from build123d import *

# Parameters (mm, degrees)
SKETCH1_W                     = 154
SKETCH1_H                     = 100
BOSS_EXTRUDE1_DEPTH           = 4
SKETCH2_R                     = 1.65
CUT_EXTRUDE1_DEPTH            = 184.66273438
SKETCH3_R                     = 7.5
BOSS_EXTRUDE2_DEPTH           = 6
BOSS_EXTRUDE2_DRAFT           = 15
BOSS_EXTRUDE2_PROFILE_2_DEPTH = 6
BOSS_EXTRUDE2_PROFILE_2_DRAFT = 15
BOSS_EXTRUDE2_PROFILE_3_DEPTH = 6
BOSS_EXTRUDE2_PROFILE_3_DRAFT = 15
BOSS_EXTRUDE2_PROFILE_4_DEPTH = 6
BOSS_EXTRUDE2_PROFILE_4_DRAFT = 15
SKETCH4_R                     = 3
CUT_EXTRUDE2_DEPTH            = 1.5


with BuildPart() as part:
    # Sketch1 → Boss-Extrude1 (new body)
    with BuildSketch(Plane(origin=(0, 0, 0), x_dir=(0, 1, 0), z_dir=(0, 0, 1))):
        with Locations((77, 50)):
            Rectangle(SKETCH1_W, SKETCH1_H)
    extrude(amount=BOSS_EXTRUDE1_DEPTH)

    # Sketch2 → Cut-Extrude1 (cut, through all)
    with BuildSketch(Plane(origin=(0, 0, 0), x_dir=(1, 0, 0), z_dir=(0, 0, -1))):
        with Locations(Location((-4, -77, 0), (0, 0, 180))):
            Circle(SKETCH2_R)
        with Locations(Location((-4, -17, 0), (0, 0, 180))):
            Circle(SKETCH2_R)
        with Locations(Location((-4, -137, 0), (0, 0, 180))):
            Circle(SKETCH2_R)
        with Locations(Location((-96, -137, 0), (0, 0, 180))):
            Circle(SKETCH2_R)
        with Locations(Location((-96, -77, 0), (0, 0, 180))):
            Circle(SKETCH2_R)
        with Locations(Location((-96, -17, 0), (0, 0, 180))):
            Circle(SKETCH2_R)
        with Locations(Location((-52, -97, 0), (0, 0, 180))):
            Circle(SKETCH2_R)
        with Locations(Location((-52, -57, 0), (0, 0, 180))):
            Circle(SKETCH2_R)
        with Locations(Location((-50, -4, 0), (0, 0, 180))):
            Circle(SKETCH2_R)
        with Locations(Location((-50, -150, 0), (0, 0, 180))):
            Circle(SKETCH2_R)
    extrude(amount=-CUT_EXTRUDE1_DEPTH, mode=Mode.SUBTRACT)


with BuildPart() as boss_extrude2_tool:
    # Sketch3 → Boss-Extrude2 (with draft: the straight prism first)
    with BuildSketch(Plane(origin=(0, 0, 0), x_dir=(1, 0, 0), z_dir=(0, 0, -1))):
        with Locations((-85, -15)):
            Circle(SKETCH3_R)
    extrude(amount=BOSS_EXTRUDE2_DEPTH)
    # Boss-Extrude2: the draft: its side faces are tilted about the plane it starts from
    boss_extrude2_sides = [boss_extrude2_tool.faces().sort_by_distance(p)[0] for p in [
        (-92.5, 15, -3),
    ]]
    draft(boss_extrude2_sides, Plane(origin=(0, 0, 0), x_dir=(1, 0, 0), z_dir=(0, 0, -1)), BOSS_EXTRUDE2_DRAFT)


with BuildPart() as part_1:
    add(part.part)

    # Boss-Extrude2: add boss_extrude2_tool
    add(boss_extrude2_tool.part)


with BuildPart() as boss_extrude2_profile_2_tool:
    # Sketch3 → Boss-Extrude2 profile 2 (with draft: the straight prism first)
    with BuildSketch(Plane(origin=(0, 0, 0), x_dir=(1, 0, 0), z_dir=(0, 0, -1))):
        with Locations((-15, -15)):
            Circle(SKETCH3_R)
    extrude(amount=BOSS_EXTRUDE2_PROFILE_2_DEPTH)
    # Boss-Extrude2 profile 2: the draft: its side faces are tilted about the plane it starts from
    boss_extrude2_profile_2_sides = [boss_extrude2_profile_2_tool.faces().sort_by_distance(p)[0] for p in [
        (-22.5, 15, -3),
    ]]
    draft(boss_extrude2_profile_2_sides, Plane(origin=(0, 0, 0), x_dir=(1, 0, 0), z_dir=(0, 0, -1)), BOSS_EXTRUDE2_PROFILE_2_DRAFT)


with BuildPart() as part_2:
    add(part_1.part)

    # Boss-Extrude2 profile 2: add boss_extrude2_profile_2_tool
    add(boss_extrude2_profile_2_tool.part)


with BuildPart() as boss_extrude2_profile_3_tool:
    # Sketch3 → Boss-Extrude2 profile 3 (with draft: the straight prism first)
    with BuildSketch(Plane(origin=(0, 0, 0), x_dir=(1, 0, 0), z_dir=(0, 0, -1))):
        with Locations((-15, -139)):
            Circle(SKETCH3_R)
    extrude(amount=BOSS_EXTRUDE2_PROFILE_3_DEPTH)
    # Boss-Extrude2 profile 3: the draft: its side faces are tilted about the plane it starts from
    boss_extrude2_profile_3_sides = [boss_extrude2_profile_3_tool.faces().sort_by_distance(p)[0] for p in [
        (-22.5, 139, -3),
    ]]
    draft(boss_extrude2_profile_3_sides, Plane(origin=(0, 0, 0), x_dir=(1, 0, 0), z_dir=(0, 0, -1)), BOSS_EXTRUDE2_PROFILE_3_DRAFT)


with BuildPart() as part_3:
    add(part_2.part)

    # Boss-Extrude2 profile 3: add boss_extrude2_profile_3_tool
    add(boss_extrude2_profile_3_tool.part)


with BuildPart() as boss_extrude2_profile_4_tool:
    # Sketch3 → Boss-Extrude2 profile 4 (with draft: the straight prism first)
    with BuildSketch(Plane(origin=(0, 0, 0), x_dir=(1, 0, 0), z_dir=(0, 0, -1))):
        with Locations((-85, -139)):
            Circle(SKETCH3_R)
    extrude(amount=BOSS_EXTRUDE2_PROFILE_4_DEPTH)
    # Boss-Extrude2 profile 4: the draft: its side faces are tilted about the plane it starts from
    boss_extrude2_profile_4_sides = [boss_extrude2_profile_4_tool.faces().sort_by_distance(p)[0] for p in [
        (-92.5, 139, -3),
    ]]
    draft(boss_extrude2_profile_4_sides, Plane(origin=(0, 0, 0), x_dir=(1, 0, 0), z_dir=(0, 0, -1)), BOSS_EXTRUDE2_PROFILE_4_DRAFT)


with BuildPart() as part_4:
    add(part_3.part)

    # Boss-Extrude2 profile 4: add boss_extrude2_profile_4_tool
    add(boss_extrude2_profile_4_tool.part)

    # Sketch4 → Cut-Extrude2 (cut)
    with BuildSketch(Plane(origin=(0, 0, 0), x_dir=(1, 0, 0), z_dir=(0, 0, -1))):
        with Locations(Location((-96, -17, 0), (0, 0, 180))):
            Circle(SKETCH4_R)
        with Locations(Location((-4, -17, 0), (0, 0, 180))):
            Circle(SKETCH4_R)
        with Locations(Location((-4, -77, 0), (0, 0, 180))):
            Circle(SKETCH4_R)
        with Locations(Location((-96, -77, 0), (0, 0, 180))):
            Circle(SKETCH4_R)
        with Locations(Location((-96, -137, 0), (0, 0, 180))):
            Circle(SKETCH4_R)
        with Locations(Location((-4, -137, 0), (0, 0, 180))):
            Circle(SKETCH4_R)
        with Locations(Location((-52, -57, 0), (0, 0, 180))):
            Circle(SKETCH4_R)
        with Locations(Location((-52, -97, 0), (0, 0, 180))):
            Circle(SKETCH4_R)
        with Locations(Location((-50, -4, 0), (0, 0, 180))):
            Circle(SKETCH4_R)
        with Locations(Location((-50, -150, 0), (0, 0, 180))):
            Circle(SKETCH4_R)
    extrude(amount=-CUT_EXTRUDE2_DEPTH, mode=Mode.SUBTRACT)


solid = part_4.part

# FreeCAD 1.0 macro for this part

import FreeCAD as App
import Part
import Sketcher
Q = App.Units.Quantity


def faces_at(feature, points):
    """Names of the faces that lie closest to the given points."""
    faces = feature.Shape.Faces
    near = lambda p: min(range(len(faces)), key=lambda i: faces[i].distToShape(Part.Vertex(*p))[0])
    return sorted({f"Face{near(p) + 1}" for p in points})

doc = App.newDocument("Part")
body = doc.addObject("PartDesign::Body", "Body")

sketch1 = body.newObject("Sketcher::SketchObject", "Sketch")
sketch1.AttachmentSupport = (doc.getObject("XY_Plane"), [""])
sketch1.MapMode = "FlatFace"
sketch1.addGeometry([
    Part.LineSegment(App.Vector(-100, 0, 0), App.Vector(0, 0, 0)),
    Part.LineSegment(App.Vector(0, 0, 0), App.Vector(0, 154, 0)),
    Part.LineSegment(App.Vector(0, 154, 0), App.Vector(-100, 154, 0)),
    Part.LineSegment(App.Vector(-100, 154, 0), App.Vector(-100, 0, 0)),
], False)
sketch1.addConstraint([
    Sketcher.Constraint("Coincident", 0, 2, 1, 1),
    Sketcher.Constraint("Coincident", 1, 2, 2, 1),
    Sketcher.Constraint("Coincident", 2, 2, 3, 1),
    Sketcher.Constraint("Coincident", 3, 2, 0, 1),
    Sketcher.Constraint("Horizontal", 0),
    Sketcher.Constraint("Vertical", 1),
    Sketcher.Constraint("Horizontal", 2),
    Sketcher.Constraint("Vertical", 3),
    Sketcher.Constraint("Coincident", 0, 2, -1, 1),
    Sketcher.Constraint("DistanceX", 0, 1, 0, 2, Q("100 mm")),
    Sketcher.Constraint("DistanceY", 1, 1, 1, 2, Q("154 mm")),
])
pad1 = body.newObject("PartDesign::Pad", "Pad")
pad1.Profile = sketch1
pad1.Length = 4

sketch2 = body.newObject("Sketcher::SketchObject", "Sketch001")
sketch2.AttachmentSupport = (doc.getObject("XY_Plane"), [""])
sketch2.MapMode = "FlatFace"
sketch2.addGeometry([
    Part.Circle(App.Vector(-4, 77, 0), App.Vector(0, 0, 1), 1.65),
    Part.Circle(App.Vector(-4, 17, 0), App.Vector(0, 0, 1), 1.65),
    Part.Circle(App.Vector(-4, 137, 0), App.Vector(0, 0, 1), 1.65),
    Part.Circle(App.Vector(-96, 137, 0), App.Vector(0, 0, 1), 1.65),
    Part.Circle(App.Vector(-96, 77, 0), App.Vector(0, 0, 1), 1.65),
    Part.Circle(App.Vector(-96, 17, 0), App.Vector(0, 0, 1), 1.65),
    Part.Circle(App.Vector(-52, 97, 0), App.Vector(0, 0, 1), 1.65),
    Part.Circle(App.Vector(-52, 57, 0), App.Vector(0, 0, 1), 1.65),
    Part.Circle(App.Vector(-50, 4, 0), App.Vector(0, 0, 1), 1.65),
    Part.Circle(App.Vector(-50, 150, 0), App.Vector(0, 0, 1), 1.65),
], False)
sketch2.addConstraint([
    Sketcher.Constraint("Equal", 0, 1),
    Sketcher.Constraint("Equal", 1, 2),
    Sketcher.Constraint("Equal", 2, 3),
    Sketcher.Constraint("Equal", 3, 4),
    Sketcher.Constraint("Equal", 4, 5),
    Sketcher.Constraint("Equal", 5, 6),
    Sketcher.Constraint("Equal", 6, 7),
    Sketcher.Constraint("Equal", 7, 8),
    Sketcher.Constraint("Equal", 8, 9),
    Sketcher.Constraint("Horizontal", 2, 3, 3, 3),
    Sketcher.Constraint("Horizontal", 0, 3, 4, 3),
    Sketcher.Constraint("Horizontal", 1, 3, 5, 3),
    Sketcher.Constraint("Vertical", 0, 3, 1, 3),
    Sketcher.Constraint("Vertical", 1, 3, 2, 3),
    Sketcher.Constraint("Vertical", 3, 3, 4, 3),
    Sketcher.Constraint("Vertical", 4, 3, 5, 3),
    Sketcher.Constraint("Vertical", 6, 3, 7, 3),
    Sketcher.Constraint("Vertical", 8, 3, 9, 3),
    Sketcher.Constraint("Diameter", 0, Q("3.3 mm")),
    Sketcher.Constraint("DistanceX", 0, 3, -1, 1, Q("4 mm")),
    Sketcher.Constraint("DistanceY", -1, 1, 0, 3, Q("77 mm")),
    Sketcher.Constraint("DistanceY", -1, 1, 1, 3, Q("17 mm")),
    Sketcher.Constraint("DistanceY", -1, 1, 2, 3, Q("137 mm")),
    Sketcher.Constraint("DistanceX", 3, 3, -1, 1, Q("96 mm")),
    Sketcher.Constraint("DistanceX", 6, 3, -1, 1, Q("52 mm")),
    Sketcher.Constraint("DistanceY", -1, 1, 6, 3, Q("97 mm")),
    Sketcher.Constraint("DistanceY", -1, 1, 7, 3, Q("57 mm")),
    Sketcher.Constraint("DistanceX", 8, 3, -1, 1, Q("50 mm")),
    Sketcher.Constraint("DistanceY", -1, 1, 8, 3, Q("4 mm")),
    Sketcher.Constraint("DistanceY", -1, 1, 9, 3, Q("150 mm")),
])
pocket1 = body.newObject("PartDesign::Pocket", "Pocket")
pocket1.Profile = sketch2
pocket1.Type = "ThroughAll"
pocket1.Reversed = True
body2 = doc.addObject("PartDesign::Body", "Body001")

sketch3 = body2.newObject("Sketcher::SketchObject", "Sketch002")
sketch3.AttachmentSupport = (doc.getObject("XY_Plane001"), [""])
sketch3.MapMode = "FlatFace"
sketch3.addGeometry(Part.Circle(App.Vector(-85, 15, 0), App.Vector(0, 0, 1), 7.5), False)
sketch3.addConstraint([
    Sketcher.Constraint("Diameter", 0, Q("15 mm")),
    Sketcher.Constraint("DistanceX", 0, 3, -1, 1, Q("85 mm")),
    Sketcher.Constraint("DistanceY", -1, 1, 0, 3, Q("15 mm")),
])
pad2 = body2.newObject("PartDesign::Pad", "Pad001")
pad2.Profile = sketch3
pad2.Length = 6
pad2.Reversed = True
doc.recompute()

draft = body2.newObject("PartDesign::Draft", "Draft")
draft.Base = (pad2, faces_at(pad2, [(-92.5, 15, -3)]))
draft.NeutralPlane = (doc.getObject("XY_Plane001"), [""])
draft.Angle = 15
draft.Reversed = True
doc.recompute()

boolean = body.newObject("PartDesign::Boolean", "Boolean")
boolean.Type = "Fuse"
boolean.addObjects([body2])
body3 = doc.addObject("PartDesign::Body", "Body002")

sketch4 = body3.newObject("Sketcher::SketchObject", "Sketch003")
sketch4.AttachmentSupport = (doc.getObject("XY_Plane002"), [""])
sketch4.MapMode = "FlatFace"
sketch4.addGeometry(Part.Circle(App.Vector(-15, 15, 0), App.Vector(0, 0, 1), 7.5), False)
sketch4.addConstraint([
    Sketcher.Constraint("Diameter", 0, Q("15 mm")),
    Sketcher.Constraint("DistanceX", 0, 3, -1, 1, Q("15 mm")),
    Sketcher.Constraint("DistanceY", -1, 1, 0, 3, Q("15 mm")),
])
pad3 = body3.newObject("PartDesign::Pad", "Pad002")
pad3.Profile = sketch4
pad3.Length = 6
pad3.Reversed = True
doc.recompute()

draft2 = body3.newObject("PartDesign::Draft", "Draft001")
draft2.Base = (pad3, faces_at(pad3, [(-22.5, 15, -3)]))
draft2.NeutralPlane = (doc.getObject("XY_Plane002"), [""])
draft2.Angle = 15
draft2.Reversed = True
doc.recompute()

boolean2 = body.newObject("PartDesign::Boolean", "Boolean001")
boolean2.Type = "Fuse"
boolean2.addObjects([body3])
body4 = doc.addObject("PartDesign::Body", "Body003")

sketch5 = body4.newObject("Sketcher::SketchObject", "Sketch004")
sketch5.AttachmentSupport = (doc.getObject("XY_Plane003"), [""])
sketch5.MapMode = "FlatFace"
sketch5.addGeometry(Part.Circle(App.Vector(-15, 139, 0), App.Vector(0, 0, 1), 7.5), False)
sketch5.addConstraint([
    Sketcher.Constraint("Diameter", 0, Q("15 mm")),
    Sketcher.Constraint("DistanceX", 0, 3, -1, 1, Q("15 mm")),
    Sketcher.Constraint("DistanceY", -1, 1, 0, 3, Q("139 mm")),
])
pad4 = body4.newObject("PartDesign::Pad", "Pad003")
pad4.Profile = sketch5
pad4.Length = 6
pad4.Reversed = True
doc.recompute()

draft3 = body4.newObject("PartDesign::Draft", "Draft002")
draft3.Base = (pad4, faces_at(pad4, [(-22.5, 139, -3)]))
draft3.NeutralPlane = (doc.getObject("XY_Plane003"), [""])
draft3.Angle = 15
draft3.Reversed = True
doc.recompute()

boolean3 = body.newObject("PartDesign::Boolean", "Boolean002")
boolean3.Type = "Fuse"
boolean3.addObjects([body4])
body5 = doc.addObject("PartDesign::Body", "Body004")

sketch6 = body5.newObject("Sketcher::SketchObject", "Sketch005")
sketch6.AttachmentSupport = (doc.getObject("XY_Plane004"), [""])
sketch6.MapMode = "FlatFace"
sketch6.addGeometry(Part.Circle(App.Vector(-85, 139, 0), App.Vector(0, 0, 1), 7.5), False)
sketch6.addConstraint([
    Sketcher.Constraint("Diameter", 0, Q("15 mm")),
    Sketcher.Constraint("DistanceX", 0, 3, -1, 1, Q("85 mm")),
    Sketcher.Constraint("DistanceY", -1, 1, 0, 3, Q("139 mm")),
])
pad5 = body5.newObject("PartDesign::Pad", "Pad004")
pad5.Profile = sketch6
pad5.Length = 6
pad5.Reversed = True
doc.recompute()

draft4 = body5.newObject("PartDesign::Draft", "Draft003")
draft4.Base = (pad5, faces_at(pad5, [(-92.5, 139, -3)]))
draft4.NeutralPlane = (doc.getObject("XY_Plane004"), [""])
draft4.Angle = 15
draft4.Reversed = True
doc.recompute()

boolean4 = body.newObject("PartDesign::Boolean", "Boolean003")
boolean4.Type = "Fuse"
boolean4.addObjects([body5])

sketch7 = body.newObject("Sketcher::SketchObject", "Sketch006")
sketch7.AttachmentSupport = (doc.getObject("XY_Plane"), [""])
sketch7.MapMode = "FlatFace"
sketch7.addGeometry([
    Part.Circle(App.Vector(-96, 17, 0), App.Vector(0, 0, 1), 3),
    Part.Circle(App.Vector(-4, 17, 0), App.Vector(0, 0, 1), 3),
    Part.Circle(App.Vector(-4, 77, 0), App.Vector(0, 0, 1), 3),
    Part.Circle(App.Vector(-96, 77, 0), App.Vector(0, 0, 1), 3),
    Part.Circle(App.Vector(-96, 137, 0), App.Vector(0, 0, 1), 3),
    Part.Circle(App.Vector(-4, 137, 0), App.Vector(0, 0, 1), 3),
    Part.Circle(App.Vector(-52, 57, 0), App.Vector(0, 0, 1), 3),
    Part.Circle(App.Vector(-52, 97, 0), App.Vector(0, 0, 1), 3),
    Part.Circle(App.Vector(-50, 4, 0), App.Vector(0, 0, 1), 3),
    Part.Circle(App.Vector(-50, 150, 0), App.Vector(0, 0, 1), 3),
], False)
sketch7.addConstraint([
    Sketcher.Constraint("Equal", 0, 1),
    Sketcher.Constraint("Equal", 1, 2),
    Sketcher.Constraint("Equal", 2, 3),
    Sketcher.Constraint("Equal", 3, 4),
    Sketcher.Constraint("Equal", 4, 5),
    Sketcher.Constraint("Equal", 5, 6),
    Sketcher.Constraint("Equal", 6, 7),
    Sketcher.Constraint("Equal", 7, 8),
    Sketcher.Constraint("Equal", 8, 9),
    Sketcher.Constraint("Horizontal", 0, 3, 1, 3),
    Sketcher.Constraint("Horizontal", 2, 3, 3, 3),
    Sketcher.Constraint("Horizontal", 4, 3, 5, 3),
    Sketcher.Constraint("Vertical", 1, 3, 2, 3),
    Sketcher.Constraint("Vertical", 0, 3, 3, 3),
    Sketcher.Constraint("Vertical", 3, 3, 4, 3),
    Sketcher.Constraint("Vertical", 2, 3, 5, 3),
    Sketcher.Constraint("Vertical", 6, 3, 7, 3),
    Sketcher.Constraint("Vertical", 8, 3, 9, 3),
    Sketcher.Constraint("Diameter", 0, Q("6 mm")),
    Sketcher.Constraint("DistanceX", 0, 3, -1, 1, Q("96 mm")),
    Sketcher.Constraint("DistanceY", -1, 1, 0, 3, Q("17 mm")),
    Sketcher.Constraint("DistanceX", 1, 3, -1, 1, Q("4 mm")),
    Sketcher.Constraint("DistanceY", -1, 1, 2, 3, Q("77 mm")),
    Sketcher.Constraint("DistanceY", -1, 1, 4, 3, Q("137 mm")),
    Sketcher.Constraint("DistanceX", 6, 3, -1, 1, Q("52 mm")),
    Sketcher.Constraint("DistanceY", -1, 1, 6, 3, Q("57 mm")),
    Sketcher.Constraint("DistanceY", -1, 1, 7, 3, Q("97 mm")),
    Sketcher.Constraint("DistanceX", 8, 3, -1, 1, Q("50 mm")),
    Sketcher.Constraint("DistanceY", -1, 1, 8, 3, Q("4 mm")),
    Sketcher.Constraint("DistanceY", -1, 1, 9, 3, Q("150 mm")),
])
pocket2 = body.newObject("PartDesign::Pocket", "Pocket001")
pocket2.Profile = sketch7
pocket2.Length = 1.5
pocket2.Reversed = True

doc.recompute()
